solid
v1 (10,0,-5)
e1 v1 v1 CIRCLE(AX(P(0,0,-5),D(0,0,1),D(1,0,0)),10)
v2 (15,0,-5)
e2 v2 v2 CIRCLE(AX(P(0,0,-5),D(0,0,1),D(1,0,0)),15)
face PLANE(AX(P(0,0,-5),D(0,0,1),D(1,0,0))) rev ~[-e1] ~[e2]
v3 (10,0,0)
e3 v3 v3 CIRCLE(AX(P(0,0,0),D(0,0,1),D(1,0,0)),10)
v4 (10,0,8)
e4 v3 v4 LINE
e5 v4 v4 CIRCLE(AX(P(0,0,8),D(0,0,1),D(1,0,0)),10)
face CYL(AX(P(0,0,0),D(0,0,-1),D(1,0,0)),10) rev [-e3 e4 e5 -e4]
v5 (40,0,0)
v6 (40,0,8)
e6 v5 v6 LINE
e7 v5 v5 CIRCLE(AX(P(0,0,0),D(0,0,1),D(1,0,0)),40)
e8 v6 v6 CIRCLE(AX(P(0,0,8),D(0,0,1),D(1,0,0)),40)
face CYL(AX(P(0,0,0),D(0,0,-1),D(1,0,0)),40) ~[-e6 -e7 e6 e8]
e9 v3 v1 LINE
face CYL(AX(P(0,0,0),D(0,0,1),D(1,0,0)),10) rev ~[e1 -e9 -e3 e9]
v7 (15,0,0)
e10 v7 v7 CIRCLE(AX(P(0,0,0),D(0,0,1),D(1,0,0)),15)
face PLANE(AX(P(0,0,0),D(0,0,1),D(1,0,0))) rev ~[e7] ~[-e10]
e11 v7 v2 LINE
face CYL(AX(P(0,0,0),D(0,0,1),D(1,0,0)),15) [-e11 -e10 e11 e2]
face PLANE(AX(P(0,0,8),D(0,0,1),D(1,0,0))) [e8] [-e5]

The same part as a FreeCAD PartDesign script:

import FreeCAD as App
import Part
import Sketcher
Q = App.Units.Quantity

doc = App.newDocument("Part")
body = doc.addObject("PartDesign::Body", "Body")

# Sketch on XY plane
sketch1 = body.newObject("Sketcher::SketchObject", "Sketch")
sketch1.AttachmentSupport = (doc.getObject("XY_Plane"), [""])
sketch1.MapMode = "FlatFace"
sketch1.addGeometry([
    Part.Circle(App.Vector(0, 0, 0), App.Vector(0, 0, 1), 40),
    Part.Circle(App.Vector(0, 0, 0), App.Vector(0, 0, 1), 10),
], False)
sketch1.addConstraint([
    Sketcher.Constraint("Coincident", 0, 3, -1, 1),
    Sketcher.Constraint("Coincident", 1, 3, -1, 1),
    Sketcher.Constraint("Diameter", 0, Q("80 mm")),
    Sketcher.Constraint("Diameter", 1, Q("20 mm")),
])
pad1 = body.newObject("PartDesign::Pad", "Pad")
pad1.Profile = sketch1
pad1.Length = 8

# Sketch on XY plane
sketch2 = body.newObject("Sketcher::SketchObject", "Sketch001")
sketch2.AttachmentSupport = (doc.getObject("XY_Plane"), [""])
sketch2.MapMode = "FlatFace"
sketch2.addGeometry([
    Part.Circle(App.Vector(0, 0, 0), App.Vector(0, 0, 1), 15),
    Part.Circle(App.Vector(0, 0, 0), App.Vector(0, 0, 1), 10),
], False)
sketch2.addConstraint([
    Sketcher.Constraint("Coincident", 0, 3, -1, 1),
    Sketcher.Constraint("Coincident", 1, 3, -1, 1),
    Sketcher.Constraint("Diameter", 0, Q("30 mm")),
    Sketcher.Constraint("Diameter", 1, Q("20 mm")),
])
pad2 = body.newObject("PartDesign::Pad", "Pad001")
pad2.Profile = sketch2
pad2.Length = 5
pad2.Reversed = True

# Sketch on XY plane
sketch3 = body.newObject("Sketcher::SketchObject", "Sketch002")
sketch3.AttachmentSupport = (doc.getObject("XY_Plane"), [""])
sketch3.MapMode = "FlatFace"
sketch3.addGeometry(Part.Circle(App.Vector(0, 0, 0), App.Vector(0, 0, 1), 10), False)
sketch3.addConstraint([
    Sketcher.Constraint("Coincident", 0, 3, -1, 1),
    Sketcher.Constraint("Diameter", 0, Q("20 mm")),
])
pocket1 = body.newObject("PartDesign::Pocket", "Pocket")
pocket1.Profile = sketch3
pocket1.Type = "ThroughAll"

doc.recompute()
